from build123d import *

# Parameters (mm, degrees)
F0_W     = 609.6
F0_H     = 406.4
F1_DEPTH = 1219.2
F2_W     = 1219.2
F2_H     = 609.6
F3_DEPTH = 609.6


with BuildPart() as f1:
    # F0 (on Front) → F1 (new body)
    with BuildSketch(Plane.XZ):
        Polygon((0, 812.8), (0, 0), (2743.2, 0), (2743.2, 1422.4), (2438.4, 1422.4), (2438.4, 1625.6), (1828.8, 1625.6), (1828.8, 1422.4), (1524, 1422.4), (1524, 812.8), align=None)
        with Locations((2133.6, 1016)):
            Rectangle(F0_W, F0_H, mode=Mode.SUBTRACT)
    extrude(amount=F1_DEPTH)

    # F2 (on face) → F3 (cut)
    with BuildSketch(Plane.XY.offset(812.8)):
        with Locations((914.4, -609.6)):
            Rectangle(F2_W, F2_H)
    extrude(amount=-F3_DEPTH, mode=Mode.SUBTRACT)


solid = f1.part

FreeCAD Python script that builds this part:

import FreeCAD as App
import Part
import Sketcher

V = App.Vector
Q = App.Units.Quantity

doc = App.newDocument("Part")
body = doc.addObject("PartDesign::Body", "Body")

sketch1 = body.newObject("Sketcher::SketchObject", "Sketch")
sketch1.AttachmentSupport = (doc.getObject("XZ_Plane"), [""])
sketch1.MapMode = "FlatFace"
sketch1.addGeometry(Part.LineSegment(V(0, 812.8, 0), V(0, 0, 0)), False)
sketch1.addGeometry(Part.LineSegment(V(0, 0, 0), V(2743.2, 0, 0)), False)
sketch1.addGeometry(Part.LineSegment(V(2743.2, 0, 0), V(2743.2, 1422.4, 0)), False)
sketch1.addGeometry(Part.LineSegment(V(2743.2, 1422.4, 0), V(2438.4, 1422.4, 0)), False)
sketch1.addGeometry(Part.LineSegment(V(2438.4, 1422.4, 0), V(2438.4, 1625.6, 0)), False)
sketch1.addGeometry(Part.LineSegment(V(2438.4, 1625.6, 0), V(1828.8, 1625.6, 0)), False)
sketch1.addGeometry(Part.LineSegment(V(1828.8, 1625.6, 0), V(1828.8, 1422.4, 0)), False)
sketch1.addGeometry(Part.LineSegment(V(1828.8, 1422.4, 0), V(1524, 1422.4, 0)), False)
sketch1.addGeometry(Part.LineSegment(V(1524, 1422.4, 0), V(1524, 812.8, 0)), False)
sketch1.addGeometry(Part.LineSegment(V(1524, 812.8, 0), V(0, 812.8, 0)), False)
sketch1.addGeometry(Part.LineSegment(V(2438.4, 812.8, 0), V(1828.8, 812.8, 0)), False)
sketch1.addGeometry(Part.LineSegment(V(1828.8, 812.8, 0), V(1828.8, 1219.2, 0)), False)
sketch1.addGeometry(Part.LineSegment(V(1828.8, 1219.2, 0), V(2438.4, 1219.2, 0)), False)
sketch1.addGeometry(Part.LineSegment(V(2438.4, 1219.2, 0), V(2438.4, 812.8, 0)), False)
sketch1.addConstraint(Sketcher.Constraint("Coincident", 0, 2, 1, 1))
sketch1.addConstraint(Sketcher.Constraint("Coincident", 1, 2, 2, 1))
sketch1.addConstraint(Sketcher.Constraint("Coincident", 2, 2, 3, 1))
sketch1.addConstraint(Sketcher.Constraint("Coincident", 3, 2, 4, 1))
sketch1.addConstraint(Sketcher.Constraint("Coincident", 4, 2, 5, 1))
sketch1.addConstraint(Sketcher.Constraint("Coincident", 5, 2, 6, 1))
sketch1.addConstraint(Sketcher.Constraint("Coincident", 6, 2, 7, 1))
sketch1.addConstraint(Sketcher.Constraint("Coincident", 7, 2, 8, 1))
sketch1.addConstraint(Sketcher.Constraint("Coincident", 8, 2, 9, 1))
sketch1.addConstraint(Sketcher.Constraint("Coincident", 9, 2, 0, 1))
sketch1.addConstraint(Sketcher.Constraint("Coincident", 10, 2, 11, 1))
sketch1.addConstraint(Sketcher.Constraint("Coincident", 11, 2, 12, 1))
sketch1.addConstraint(Sketcher.Constraint("Coincident", 12, 2, 13, 1))
sketch1.addConstraint(Sketcher.Constraint("Coincident", 13, 2, 10, 1))
sketch1.addConstraint(Sketcher.Constraint("Vertical", 0))
sketch1.addConstraint(Sketcher.Constraint("Horizontal", 1))
sketch1.addConstraint(Sketcher.Constraint("Vertical", 2))
sketch1.addConstraint(Sketcher.Constraint("Horizontal", 3))
sketch1.addConstraint(Sketcher.Constraint("Vertical", 4))
sketch1.addConstraint(Sketcher.Constraint("Horizontal", 5))
sketch1.addConstraint(Sketcher.Constraint("Vertical", 6))
sketch1.addConstraint(Sketcher.Constraint("Horizontal", 7))
sketch1.addConstraint(Sketcher.Constraint("Vertical", 8))
sketch1.addConstraint(Sketcher.Constraint("Horizontal", 9))
sketch1.addConstraint(Sketcher.Constraint("Horizontal", 10))
sketch1.addConstraint(Sketcher.Constraint("Vertical", 11))
sketch1.addConstraint(Sketcher.Constraint("Horizontal", 12))
sketch1.addConstraint(Sketcher.Constraint("Vertical", 13))
sketch1.addConstraint(Sketcher.Constraint("Coincident", 0, 2, -1, 1))
sketch1.addConstraint(Sketcher.Constraint("Horizontal", 3, 2, 6, 2))
sketch1.addConstraint(Sketcher.Constraint("Horizontal", 9, 2, 10, 2))
sketch1.addConstraint(Sketcher.Constraint("Vertical", 6, 2, 10, 2))
sketch1.addConstraint(Sketcher.Constraint("Vertical", 4, 2, 12, 2))
sketch1.addConstraint(Sketcher.Constraint("Equal", 3, 7))
sketch1.addConstraint(Sketcher.Constraint("Equal", 12, 8))
sketch1.addConstraint(Sketcher.Constraint("DistanceX", 1, 1, 1, 2, Q("108 in")))
sketch1.addConstraint(Sketcher.Constraint("DistanceX", 3, 2, 3, 1, Q("12 in")))
sketch1.addConstraint(Sketcher.Constraint("DistanceX", 5, 2, 5, 1, Q("24 in")))
sketch1.addConstraint(Sketcher.Constraint("DistanceY", 0, 2, 0, 1, Q("32 in")))
sketch1.addConstraint(Sketcher.Constraint("DistanceY", 4, 1, 4, 2, Q("8 in")))
sketch1.addConstraint(Sketcher.Constraint("DistanceY", 11, 1, 11, 2, Q("16 in")))
pad1 = body.newObject("PartDesign::Pad", "Pad")
pad1.Profile = sketch1
pad1.Length = Q("48 in")

sketch2 = body.newObject("Sketcher::SketchObject", "Sketch001")
sketch2.AttachmentSupport = (doc.getObject("XY_Plane"), [""])
sketch2.MapMode = "FlatFace"
sketch2.AttachmentOffset = App.Placement(V(0, 0, 32 * 25.4), App.Rotation())
sketch2.addGeometry(Part.LineSegment(V(304.8, -304.8, 0), V(304.8, -914.4, 0)), False)
sketch2.addGeometry(Part.LineSegment(V(304.8, -914.4, 0), V(1524, -914.4, 0)), False)
sketch2.addGeometry(Part.LineSegment(V(1524, -914.4, 0), V(1524, -304.8, 0)), False)
sketch2.addGeometry(Part.LineSegment(V(1524, -304.8, 0), V(304.8, -304.8, 0)), False)
sketch2.addConstraint(Sketcher.Constraint("Coincident", 0, 2, 1, 1))
sketch2.addConstraint(Sketcher.Constraint("Coincident", 1, 2, 2, 1))
sketch2.addConstraint(Sketcher.Constraint("Coincident", 2, 2, 3, 1))
sketch2.addConstraint(Sketcher.Constraint("Coincident", 3, 2, 0, 1))
sketch2.addConstraint(Sketcher.Constraint("Vertical", 0))
sketch2.addConstraint(Sketcher.Constraint("Horizontal", 1))
sketch2.addConstraint(Sketcher.Constraint("Vertical", 2))
sketch2.addConstraint(Sketcher.Constraint("Horizontal", 3))
sketch2.addConstraint(Sketcher.Constraint("DistanceX", 1, 1, 1, 2, Q("48 in")))
sketch2.addConstraint(Sketcher.Constraint("DistanceY", 0, 2, 0, 1, Q("24 in")))
sketch2.addConstraint(Sketcher.Constraint("DistanceX", -1, 1, 0, 2, Q("12 in")))
sketch2.addConstraint(Sketcher.Constraint("DistanceY", 0, 2, -1, 1, Q("36 in")))
pocket1 = body.newObject("PartDesign::Pocket", "Pocket")
pocket1.Profile = sketch2
pocket1.Length = Q("24 in")

doc.recompute()
